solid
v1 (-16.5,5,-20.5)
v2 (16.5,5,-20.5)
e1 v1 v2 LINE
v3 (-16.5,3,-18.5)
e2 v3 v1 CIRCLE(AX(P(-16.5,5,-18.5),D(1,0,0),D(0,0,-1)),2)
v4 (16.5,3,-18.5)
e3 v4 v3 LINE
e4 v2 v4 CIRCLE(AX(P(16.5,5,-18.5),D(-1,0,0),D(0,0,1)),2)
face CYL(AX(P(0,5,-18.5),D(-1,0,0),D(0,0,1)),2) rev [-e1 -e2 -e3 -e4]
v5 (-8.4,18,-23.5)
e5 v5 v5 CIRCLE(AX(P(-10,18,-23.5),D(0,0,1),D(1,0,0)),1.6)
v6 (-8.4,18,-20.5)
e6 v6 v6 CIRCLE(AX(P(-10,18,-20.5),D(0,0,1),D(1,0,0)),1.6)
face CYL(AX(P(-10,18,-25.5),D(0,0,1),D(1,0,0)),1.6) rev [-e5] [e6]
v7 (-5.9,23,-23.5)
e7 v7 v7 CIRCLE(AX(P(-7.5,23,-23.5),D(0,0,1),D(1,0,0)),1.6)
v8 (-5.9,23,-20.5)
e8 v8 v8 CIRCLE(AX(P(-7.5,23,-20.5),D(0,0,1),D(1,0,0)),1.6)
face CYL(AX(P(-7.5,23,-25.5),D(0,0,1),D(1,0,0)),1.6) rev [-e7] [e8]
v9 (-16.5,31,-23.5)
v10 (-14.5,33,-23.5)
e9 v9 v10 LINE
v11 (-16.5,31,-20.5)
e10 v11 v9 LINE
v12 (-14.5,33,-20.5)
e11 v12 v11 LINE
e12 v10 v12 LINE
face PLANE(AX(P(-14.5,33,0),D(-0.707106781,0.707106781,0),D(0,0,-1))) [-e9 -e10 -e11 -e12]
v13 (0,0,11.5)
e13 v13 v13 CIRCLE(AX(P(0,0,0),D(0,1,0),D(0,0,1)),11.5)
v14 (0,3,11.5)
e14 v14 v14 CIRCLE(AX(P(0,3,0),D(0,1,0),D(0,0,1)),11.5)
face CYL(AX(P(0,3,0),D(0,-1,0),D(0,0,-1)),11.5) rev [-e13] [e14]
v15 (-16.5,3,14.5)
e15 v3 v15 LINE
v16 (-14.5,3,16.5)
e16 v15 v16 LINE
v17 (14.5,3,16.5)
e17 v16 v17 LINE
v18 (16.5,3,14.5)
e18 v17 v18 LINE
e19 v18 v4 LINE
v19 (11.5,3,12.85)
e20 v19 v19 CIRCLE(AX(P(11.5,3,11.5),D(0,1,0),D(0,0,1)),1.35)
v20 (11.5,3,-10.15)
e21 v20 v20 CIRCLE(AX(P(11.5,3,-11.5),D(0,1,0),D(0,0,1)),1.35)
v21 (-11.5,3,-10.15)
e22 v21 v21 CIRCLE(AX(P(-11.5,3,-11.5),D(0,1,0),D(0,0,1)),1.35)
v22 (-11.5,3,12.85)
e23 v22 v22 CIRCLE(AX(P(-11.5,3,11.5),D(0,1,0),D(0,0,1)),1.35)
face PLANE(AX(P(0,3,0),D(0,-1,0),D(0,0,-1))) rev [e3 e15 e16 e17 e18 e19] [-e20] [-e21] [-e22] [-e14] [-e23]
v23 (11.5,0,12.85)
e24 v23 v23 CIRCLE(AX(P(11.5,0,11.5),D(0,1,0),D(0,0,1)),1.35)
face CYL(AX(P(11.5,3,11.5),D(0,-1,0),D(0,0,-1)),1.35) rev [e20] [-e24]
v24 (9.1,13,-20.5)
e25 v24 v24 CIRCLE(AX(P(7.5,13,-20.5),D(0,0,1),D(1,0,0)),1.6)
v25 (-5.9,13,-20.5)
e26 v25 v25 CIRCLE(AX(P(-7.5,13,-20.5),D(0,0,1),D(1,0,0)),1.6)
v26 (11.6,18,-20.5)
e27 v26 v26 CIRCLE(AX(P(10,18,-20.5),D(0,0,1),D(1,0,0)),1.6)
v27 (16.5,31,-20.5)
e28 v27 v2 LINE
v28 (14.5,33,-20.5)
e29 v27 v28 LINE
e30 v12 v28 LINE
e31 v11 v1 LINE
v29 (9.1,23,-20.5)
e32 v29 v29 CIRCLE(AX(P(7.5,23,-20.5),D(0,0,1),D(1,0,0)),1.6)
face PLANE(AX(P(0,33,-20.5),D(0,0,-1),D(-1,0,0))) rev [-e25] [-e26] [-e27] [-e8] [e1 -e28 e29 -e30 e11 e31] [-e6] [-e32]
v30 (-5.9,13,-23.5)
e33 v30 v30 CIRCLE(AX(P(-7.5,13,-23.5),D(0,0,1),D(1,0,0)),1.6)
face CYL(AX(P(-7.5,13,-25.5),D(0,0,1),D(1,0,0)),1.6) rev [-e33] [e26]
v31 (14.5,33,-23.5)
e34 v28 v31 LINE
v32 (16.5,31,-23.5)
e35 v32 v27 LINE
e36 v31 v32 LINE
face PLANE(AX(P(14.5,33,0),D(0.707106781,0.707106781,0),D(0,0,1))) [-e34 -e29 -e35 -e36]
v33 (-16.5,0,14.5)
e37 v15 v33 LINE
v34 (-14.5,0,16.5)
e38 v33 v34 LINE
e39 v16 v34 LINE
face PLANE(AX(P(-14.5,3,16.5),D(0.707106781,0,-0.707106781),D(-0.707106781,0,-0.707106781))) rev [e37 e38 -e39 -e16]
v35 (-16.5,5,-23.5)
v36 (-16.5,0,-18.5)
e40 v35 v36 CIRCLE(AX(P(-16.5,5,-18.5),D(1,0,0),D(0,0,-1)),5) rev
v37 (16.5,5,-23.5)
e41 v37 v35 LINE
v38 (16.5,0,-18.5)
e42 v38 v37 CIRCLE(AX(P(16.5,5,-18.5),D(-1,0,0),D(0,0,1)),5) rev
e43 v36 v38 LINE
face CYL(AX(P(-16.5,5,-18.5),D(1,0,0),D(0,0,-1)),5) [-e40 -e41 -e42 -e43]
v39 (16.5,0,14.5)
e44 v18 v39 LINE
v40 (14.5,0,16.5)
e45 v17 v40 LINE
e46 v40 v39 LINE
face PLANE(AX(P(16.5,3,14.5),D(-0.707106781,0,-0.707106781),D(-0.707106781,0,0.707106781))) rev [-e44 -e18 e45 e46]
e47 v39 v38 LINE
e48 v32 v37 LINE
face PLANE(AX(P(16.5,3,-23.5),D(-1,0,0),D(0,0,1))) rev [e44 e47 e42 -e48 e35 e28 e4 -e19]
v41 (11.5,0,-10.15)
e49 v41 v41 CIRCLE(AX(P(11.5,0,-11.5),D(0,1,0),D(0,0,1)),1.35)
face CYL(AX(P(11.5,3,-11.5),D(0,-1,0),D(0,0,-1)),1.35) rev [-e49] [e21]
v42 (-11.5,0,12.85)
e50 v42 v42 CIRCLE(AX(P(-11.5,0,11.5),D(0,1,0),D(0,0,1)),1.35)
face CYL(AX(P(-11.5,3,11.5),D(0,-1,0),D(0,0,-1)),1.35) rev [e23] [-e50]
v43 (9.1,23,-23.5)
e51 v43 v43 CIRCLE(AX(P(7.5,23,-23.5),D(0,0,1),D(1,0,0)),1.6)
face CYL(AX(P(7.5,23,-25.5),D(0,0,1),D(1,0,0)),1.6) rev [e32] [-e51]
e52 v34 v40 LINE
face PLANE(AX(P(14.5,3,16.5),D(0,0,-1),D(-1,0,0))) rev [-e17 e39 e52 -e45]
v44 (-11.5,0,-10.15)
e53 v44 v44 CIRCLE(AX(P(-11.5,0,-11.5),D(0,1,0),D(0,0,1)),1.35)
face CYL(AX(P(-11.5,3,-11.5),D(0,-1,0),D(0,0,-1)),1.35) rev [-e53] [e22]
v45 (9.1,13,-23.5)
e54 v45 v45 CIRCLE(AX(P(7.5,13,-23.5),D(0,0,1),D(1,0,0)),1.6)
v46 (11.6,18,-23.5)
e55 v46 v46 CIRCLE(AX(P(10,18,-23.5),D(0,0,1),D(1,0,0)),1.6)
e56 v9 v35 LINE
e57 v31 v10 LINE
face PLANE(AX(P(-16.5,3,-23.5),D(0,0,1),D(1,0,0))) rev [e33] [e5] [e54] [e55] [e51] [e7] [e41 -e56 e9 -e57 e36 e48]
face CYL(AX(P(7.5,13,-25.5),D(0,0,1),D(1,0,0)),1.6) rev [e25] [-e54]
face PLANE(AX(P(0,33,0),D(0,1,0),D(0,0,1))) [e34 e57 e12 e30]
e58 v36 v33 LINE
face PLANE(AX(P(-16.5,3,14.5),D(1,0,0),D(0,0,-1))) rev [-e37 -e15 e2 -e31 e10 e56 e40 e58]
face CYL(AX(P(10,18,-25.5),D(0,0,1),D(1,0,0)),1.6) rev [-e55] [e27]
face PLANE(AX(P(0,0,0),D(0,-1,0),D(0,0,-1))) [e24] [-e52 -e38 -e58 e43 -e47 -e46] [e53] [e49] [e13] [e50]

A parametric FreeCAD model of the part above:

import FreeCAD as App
import Part
import Sketcher

V = App.Vector
Q = App.Units.Quantity


def edges_at(feature, points):
    """Names of the edges that pass closest to the given points."""
    edges = feature.Shape.Edges
    near = lambda p: min(range(len(edges)), key=lambda i: edges[i].distToShape(Part.Vertex(*p))[0])
    return sorted({f"Edge{near(p) + 1}" for p in points})

doc = App.newDocument("Part")
body = doc.addObject("PartDesign::Body", "Body")

# Sketch on XZ plane
sketch1 = doc.addObject("Sketcher::SketchObject", "Sketch")
body.addObject(sketch1)
sketch1.AttachmentSupport = (doc.XZ_Plane, [""])
sketch1.MapMode = "FlatFace"
sketch1.addGeometry([
    Part.LineSegment(V(16.5, 14.5, 0), V(16.5, -23.5, 0)),  # 0
    Part.LineSegment(V(16.5, -23.5, 0), V(-16.5, -23.5, 0)),  # 1
    Part.LineSegment(V(-16.5, -23.5, 0), V(-16.5, 14.5, 0)),  # 2
    Part.LineSegment(V(-16.5, 14.5, 0), V(-14.5, 16.5, 0)),  # 3
    Part.LineSegment(V(-14.5, 16.5, 0), V(14.5, 16.5, 0)),  # 4
    Part.LineSegment(V(14.5, 16.5, 0), V(16.5, 14.5, 0)),  # 5
    Part.Circle(V(11.5, 11.5, 0), V(0, 0, 1), 1.4),  # 6
    Part.Circle(V(-11.5, 11.5, 0), V(0, 0, 1), 1.4),  # 7
    Part.Circle(V(0, 0, 0), V(0, 0, 1), 11.5),  # 8
    Part.Circle(V(11.5, -11.5, 0), V(0, 0, 1), 1.4),  # 9
    Part.Circle(V(-11.5, -11.5, 0), V(0, 0, 1), 1.4),  # 10
], False)
sketch1.addConstraint([
    Sketcher.Constraint("Coincident", 0, 2, 1, 1),
    Sketcher.Constraint("Coincident", 1, 2, 2, 1),
    Sketcher.Constraint("Coincident", 2, 2, 3, 1),
    Sketcher.Constraint("Coincident", 3, 2, 4, 1),
    Sketcher.Constraint("Coincident", 4, 2, 5, 1),
    Sketcher.Constraint("Coincident", 5, 2, 0, 1),
    Sketcher.Constraint("Vertical", 0),
    Sketcher.Constraint("Horizontal", 1),
    Sketcher.Constraint("Vertical", 2),
    Sketcher.Constraint("Horizontal", 4),
    Sketcher.Constraint("Coincident", 8, 3, -1, 1),
    Sketcher.Constraint("Equal", 6, 7),
    Sketcher.Constraint("Equal", 7, 9),
    Sketcher.Constraint("Equal", 9, 10),
    Sketcher.Constraint("Symmetric", 7, 3, 9, 3, -1, 1),
    Sketcher.Constraint("Symmetric", 6, 3, 10, 3, -1, 1),
    Sketcher.Constraint("Symmetric", 6, 3, 7, 3, -2),
    Sketcher.Constraint("Symmetric", 2, 2, 5, 2, -2),
    Sketcher.Constraint("Perpendicular", 3, 5),
    Sketcher.Constraint("Equal", 3, 5),
    Sketcher.Constraint("Diameter", 8, Q("23 mm")),
    Sketcher.Constraint("Diameter", 6, Q("2.7 mm")),
    Sketcher.Constraint("DistanceX", 1, 2, 1, 1, Q("33 mm")),
    Sketcher.Constraint("DistanceX", 4, 1, 4, 2, Q("29 mm")),
    Sketcher.Constraint("DistanceY", 0, 2, 0, 1, Q("38 mm")),
    Sketcher.Constraint("DistanceX", 7, 3, 6, 3, Q("23 mm")),
    Sketcher.Constraint("DistanceY", 9, 3, 6, 3, Q("23 mm")),
    Sketcher.Constraint("DistanceY", 0, 2, 9, 3, Q("12 mm")),
])
pad1 = doc.addObject("PartDesign::Pad", "Pad")
body.addObject(pad1)
pad1.Profile = sketch1
pad1.Length = 3
pad1.Reversed = True

# Sketch on XZ plane
sketch2 = doc.addObject("Sketcher::SketchObject", "Sketch001")
body.addObject(sketch2)
sketch2.AttachmentSupport = (doc.XZ_Plane, [""])
sketch2.MapMode = "FlatFace"
sketch2.AttachmentOffset = App.Placement(V(0, 0, -3), App.Rotation())
sketch2.addGeometry([
    Part.LineSegment(V(-16.5, -23.5, 0), V(-16.5, -20.5, 0)),
    Part.LineSegment(V(-16.5, -20.5, 0), V(16.5, -20.5, 0)),
    Part.LineSegment(V(16.5, -20.5, 0), V(16.5, -23.5, 0)),
    Part.LineSegment(V(16.5, -23.5, 0), V(-16.5, -23.5, 0)),
], False)
sketch2.addConstraint([
    Sketcher.Constraint("Coincident", 0, 2, 1, 1),
    Sketcher.Constraint("Coincident", 1, 2, 2, 1),
    Sketcher.Constraint("Coincident", 2, 2, 3, 1),
    Sketcher.Constraint("Coincident", 3, 2, 0, 1),
    Sketcher.Constraint("Vertical", 0),
    Sketcher.Constraint("Horizontal", 1),
    Sketcher.Constraint("Vertical", 2),
    Sketcher.Constraint("Horizontal", 3),
    Sketcher.Constraint("DistanceX", 1, 1, 1, 2, Q("33 mm")),
    Sketcher.Constraint("DistanceY", 0, 1, 0, 2, Q("3 mm")),
    Sketcher.Constraint("DistanceX", 0, 2, -1, 1, Q("16.5 mm")),
    Sketcher.Constraint("DistanceY", 0, 2, -1, 1, Q("20.5 mm")),
])
pad2 = doc.addObject("PartDesign::Pad", "Pad001")
body.addObject(pad2)
pad2.Profile = sketch2
pad2.Length = 30
pad2.Reversed = True

# Sketch on XY plane
sketch3 = doc.addObject("Sketcher::SketchObject", "Sketch002")
body.addObject(sketch3)
sketch3.AttachmentSupport = (doc.XY_Plane, [""])
sketch3.MapMode = "FlatFace"
sketch3.AttachmentOffset = App.Placement(V(0, 0, -20.5), App.Rotation())
sketch3.addGeometry([
    Part.Circle(V(-7.5, 23, 0), V(0, 0, 1), 1.6),  # 0
    Part.Circle(V(7.5, 23, 0), V(0, 0, 1), 1.6),  # 1
    Part.Circle(V(7.5, 13, 0), V(0, 0, 1), 1.6),  # 2
    Part.Circle(V(-7.5, 13, 0), V(0, 0, 1), 1.6),  # 3
    Part.Circle(V(-10, 18, 0), V(0, 0, 1), 1.6),  # 4
    Part.Circle(V(10, 18, 0), V(0, 0, 1), 1.6),  # 5
], False)
sketch3.addConstraint([
    Sketcher.Constraint("Equal", 0, 1),
    Sketcher.Constraint("Equal", 1, 2),
    Sketcher.Constraint("Equal", 2, 3),
    Sketcher.Constraint("Equal", 3, 4),
    Sketcher.Constraint("Equal", 4, 5),
    Sketcher.Constraint("Symmetric", 0, 3, 1, 3, -2),
    Sketcher.Constraint("Symmetric", 2, 3, 3, 3, -2),
    Sketcher.Constraint("Symmetric", 4, 3, 5, 3, -2),
    Sketcher.Constraint("Vertical", 1, 3, 2, 3),
    Sketcher.Constraint("Diameter", 0, Q("3.2 mm")),
    Sketcher.Constraint("DistanceY", -1, 1, 0, 3, Q("23 mm")),
    Sketcher.Constraint("DistanceY", -1, 1, 2, 3, Q("13 mm")),
    Sketcher.Constraint("DistanceX", 4, 3, -1, 1, Q("10 mm")),
    Sketcher.Constraint("DistanceY", -1, 1, 4, 3, Q("18 mm")),
    Sketcher.Constraint("DistanceX", 0, 3, 1, 3, Q("15 mm")),
])
pocket1 = doc.addObject("PartDesign::Pocket", "Pocket")
body.addObject(pocket1)
pocket1.Profile = sketch3
pocket1.Length = 5
doc.recompute()

fillet = doc.addObject("PartDesign::Fillet", "Fillet")
body.addObject(fillet)
fillet.Base = (pocket1, edges_at(pocket1, [(0, 3, -20.5)]))
fillet.Radius = 2
doc.recompute()

fillet2 = doc.addObject("PartDesign::Fillet", "Fillet001")
body.addObject(fillet2)
fillet2.Base = (fillet, edges_at(fillet, [(0, 0, -23.5)]))
fillet2.Radius = 5
doc.recompute()

chamfer = doc.addObject("PartDesign::Chamfer", "Chamfer")
body.addObject(chamfer)
chamfer.Base = (fillet2, edges_at(fillet2, [(-16.5, 33, -22), (16.5, 33, -22)]))
chamfer.Size = 2

doc.recompute()
